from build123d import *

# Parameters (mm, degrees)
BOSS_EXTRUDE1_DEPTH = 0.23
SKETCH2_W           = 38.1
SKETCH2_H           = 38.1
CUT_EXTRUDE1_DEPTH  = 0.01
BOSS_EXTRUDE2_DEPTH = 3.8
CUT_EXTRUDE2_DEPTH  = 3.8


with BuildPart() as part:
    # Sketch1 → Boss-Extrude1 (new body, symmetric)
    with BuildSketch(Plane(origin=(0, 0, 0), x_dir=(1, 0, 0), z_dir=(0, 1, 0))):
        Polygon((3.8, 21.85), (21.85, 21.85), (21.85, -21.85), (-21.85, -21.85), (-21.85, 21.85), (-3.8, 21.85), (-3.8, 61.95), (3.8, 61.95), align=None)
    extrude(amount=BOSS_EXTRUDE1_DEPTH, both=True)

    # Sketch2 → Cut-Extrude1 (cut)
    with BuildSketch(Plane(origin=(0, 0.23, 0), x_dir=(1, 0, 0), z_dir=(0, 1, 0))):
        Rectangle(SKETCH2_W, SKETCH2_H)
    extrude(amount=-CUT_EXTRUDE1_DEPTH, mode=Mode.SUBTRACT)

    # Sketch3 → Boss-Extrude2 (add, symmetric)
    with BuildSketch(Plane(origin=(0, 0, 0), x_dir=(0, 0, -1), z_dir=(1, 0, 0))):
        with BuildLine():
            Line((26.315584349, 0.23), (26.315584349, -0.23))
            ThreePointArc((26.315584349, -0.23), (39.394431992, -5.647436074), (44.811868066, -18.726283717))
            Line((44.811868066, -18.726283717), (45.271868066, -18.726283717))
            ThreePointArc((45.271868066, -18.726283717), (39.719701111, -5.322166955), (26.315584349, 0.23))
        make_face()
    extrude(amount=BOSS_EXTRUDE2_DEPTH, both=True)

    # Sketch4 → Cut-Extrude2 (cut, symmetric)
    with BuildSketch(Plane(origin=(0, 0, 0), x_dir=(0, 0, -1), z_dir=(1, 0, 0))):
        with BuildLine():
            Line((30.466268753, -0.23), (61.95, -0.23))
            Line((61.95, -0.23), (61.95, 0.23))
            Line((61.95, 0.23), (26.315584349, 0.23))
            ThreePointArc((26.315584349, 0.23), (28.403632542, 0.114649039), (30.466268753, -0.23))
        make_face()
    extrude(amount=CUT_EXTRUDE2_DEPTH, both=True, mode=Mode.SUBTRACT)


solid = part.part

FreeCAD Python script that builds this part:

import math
import FreeCAD as App
import Part
import Sketcher
from FreeCAD import Vector


def add_polygon(sketch, points):
    """Adds a closed chain of lines whose ends are joined by coincident constraints."""
    first, n = sketch.GeometryCount, len(points)
    for a, b in zip(points, points[1:] + points[:1]):
        sketch.addGeometry(Part.LineSegment(App.Vector(*a, 0), App.Vector(*b, 0)), False)
    for i in range(n):
        sketch.addConstraint(Sketcher.Constraint("Coincident", first + i, 2, first + (i + 1) % n, 1))

doc = App.newDocument("Part")
params = doc.addObject("Spreadsheet::Sheet", "Params")
for row, (alias, value) in enumerate([
    ("sketch1_width", "7.6 mm"),
    ("sketch1_width2", "43.7 mm"),
    ("sketch1_height", "40.1 mm"),
    ("pad1_length", "0.46 mm"),
    ("sketch2_width", "38.1 mm"),
    ("pocket1_length", "0.01 mm"),
    ("sketch3_width", "0.46 mm"),
    ("pad2_length", "7.6 mm"),
    ("sketch4_width", "0.46 mm"),
    ("pocket2_length", "7.6 mm"),
], start=1):
    params.set(f"A{row}", alias)
    params.set(f"B{row}", "=" + value)
    params.setAlias(f"B{row}", alias)

body = doc.addObject("PartDesign::Body", "Body")

# Sketch on XZ plane
sketch1 = doc.addObject("Sketcher::SketchObject", "Sketch")
body.addObject(sketch1)
sketch1.AttachmentSupport = (doc.XZ_Plane, [""])
sketch1.MapMode = "FlatFace"
add_polygon(sketch1, [(22, -22), (4, -22), (4, -62), (-4, -62), (-4, -22), (-22, -22), (-22, 22), (22, 22)])  # lines 0-7
sketch1.addConstraint(Sketcher.Constraint("Horizontal", 0))
sketch1.addConstraint(Sketcher.Constraint("Vertical", 1))
sketch1.addConstraint(Sketcher.Constraint("Horizontal", 2))
sketch1.addConstraint(Sketcher.Constraint("Vertical", 3))
sketch1.addConstraint(Sketcher.Constraint("Horizontal", 4))
sketch1.addConstraint(Sketcher.Constraint("Vertical", 5))
sketch1.addConstraint(Sketcher.Constraint("Horizontal", 6))
sketch1.addConstraint(Sketcher.Constraint("Vertical", 7))
sketch1.addConstraint(Sketcher.Constraint("Symmetric", 4, 2, 6, 2, -1, 1))
sketch1.addConstraint(Sketcher.Constraint("Symmetric", 0, 2, 3, 2, -2))
sketch1.addConstraint(Sketcher.Constraint("Equal", 6, 5))
sketch1.addConstraint(Sketcher.Constraint("DistanceX", 2, 2, 2, 1, 7.6))
sketch1.addConstraint(Sketcher.Constraint("DistanceX", 6, 1, 6, 2, 43.7))
sketch1.addConstraint(Sketcher.Constraint("DistanceY", 1, 2, 1, 1, 40.1))
sketch1.setExpression("Constraints[19]", "Params.sketch1_width")
sketch1.setExpression("Constraints[20]", "Params.sketch1_width2")
sketch1.setExpression("Constraints[21]", "Params.sketch1_height")
pad1 = doc.addObject("PartDesign::Pad", "Pad")
body.addObject(pad1)
pad1.Profile = sketch1
pad1.setExpression("Length", "Params.pad1_length")
pad1.Midplane = True

# Sketch on XZ plane
sketch2 = doc.addObject("Sketcher::SketchObject", "Sketch001")
body.addObject(sketch2)
sketch2.AttachmentSupport = (doc.XZ_Plane, [""])
sketch2.MapMode = "FlatFace"
sketch2.AttachmentOffset = App.Placement(Vector(0, 0, -0.23), App.Rotation())
add_polygon(sketch2, [(-19, -19), (-19, 19), (19, 19), (19, -19)])  # lines 0-3
sketch2.addConstraint(Sketcher.Constraint("Vertical", 0))
sketch2.addConstraint(Sketcher.Constraint("Horizontal", 1))
sketch2.addConstraint(Sketcher.Constraint("Vertical", 2))
sketch2.addConstraint(Sketcher.Constraint("Horizontal", 3))
sketch2.addConstraint(Sketcher.Constraint("Symmetric", 0, 2, 2, 2, -1, 1))
sketch2.addConstraint(Sketcher.Constraint("Equal", 3, 0))
sketch2.addConstraint(Sketcher.Constraint("DistanceX", 1, 1, 1, 2, 38.1))
sketch2.setExpression("Constraints[10]", "Params.sketch2_width")
pocket1 = doc.addObject("PartDesign::Pocket", "Pocket")
body.addObject(pocket1)
pocket1.Profile = sketch2
pocket1.setExpression("Length", "Params.pocket1_length")
pocket1.Reversed = True

# Sketch on YZ plane
sketch3 = doc.addObject("Sketcher::SketchObject", "Sketch002")
body.addObject(sketch3)
sketch3.AttachmentSupport = (doc.YZ_Plane, [""])
sketch3.MapMode = "FlatFace"
sketch3.addGeometry(Part.LineSegment(Vector(0.23, -26.32, 0), Vector(-0.23, -26.32, 0)), False)
sketch3.addGeometry(Part.ArcOfCircle(Part.Circle(Vector(-18.73, -26.32, 0), Vector(0, 0, 1), 18.5), math.radians(-90), math.radians(0)), False)
sketch3.addGeometry(Part.LineSegment(Vector(-18.73, -44.81, 0), Vector(-18.73, -45.27, 0)), False)
sketch3.addGeometry(Part.ArcOfCircle(Part.Circle(Vector(-18.73, -26.32, 0), Vector(0, 0, 1), 18.96), math.radians(-90), math.radians(0)), False)
sketch3.addConstraint(Sketcher.Constraint("Coincident", 0, 2, 1, 2))
sketch3.addConstraint(Sketcher.Constraint("Coincident", 1, 1, 2, 1))
sketch3.addConstraint(Sketcher.Constraint("Coincident", 2, 2, 3, 1))
sketch3.addConstraint(Sketcher.Constraint("Coincident", 3, 2, 0, 1))
sketch3.addConstraint(Sketcher.Constraint("Horizontal", 0))
sketch3.addConstraint(Sketcher.Constraint("Vertical", 2))
sketch3.addConstraint(Sketcher.Constraint("Coincident", 3, 3, 1, 3))
sketch3.addConstraint(Sketcher.Constraint("Horizontal", 3, 3, 0, 2))
sketch3.addConstraint(Sketcher.Constraint("Vertical", 3, 3, 1, 1))
sketch3.addConstraint(Sketcher.Constraint("DistanceX", 0, 2, 0, 1, 0.46))
sketch3.addConstraint(Sketcher.Constraint("DistanceX", 0, 2, -1, 1, 0.23))
sketch3.addConstraint(Sketcher.Constraint("Radius", 1, 18.496284))
sketch3.addConstraint(Sketcher.Constraint("DistanceY", 1, 1, -1, 1, 44.811868))
sketch3.setExpression("Constraints[9]", "Params.sketch3_width")
pad2 = doc.addObject("PartDesign::Pad", "Pad001")
body.addObject(pad2)
pad2.Profile = sketch3
pad2.setExpression("Length", "Params.pad2_length")
pad2.Midplane = True

# Sketch on YZ plane
sketch4 = doc.addObject("Sketcher::SketchObject", "Sketch003")
body.addObject(sketch4)
sketch4.AttachmentSupport = (doc.YZ_Plane, [""])
sketch4.MapMode = "FlatFace"
sketch4.addGeometry(Part.LineSegment(Vector(-0.23, -30.47, 0), Vector(-0.23, -61.95, 0)), False)
sketch4.addGeometry(Part.LineSegment(Vector(-0.23, -61.95, 0), Vector(0.23, -61.95, 0)), False)
sketch4.addGeometry(Part.LineSegment(Vector(0.23, -61.95, 0), Vector(0.23, -26.32, 0)), False)
sketch4.addGeometry(Part.ArcOfCircle(Part.Circle(Vector(-18.73, -26.32, 0), Vector(0, 0, 1), 18.96), math.radians(-12.65), math.radians(0)), False)
sketch4.addConstraint(Sketcher.Constraint("Coincident", 0, 2, 1, 1))
sketch4.addConstraint(Sketcher.Constraint("Coincident", 1, 2, 2, 1))
sketch4.addConstraint(Sketcher.Constraint("Tangent", 2, 2, 3, 2))
sketch4.addConstraint(Sketcher.Constraint("Coincident", 3, 1, 0, 1))
sketch4.addConstraint(Sketcher.Constraint("Vertical", 0))
sketch4.addConstraint(Sketcher.Constraint("Horizontal", 1))
sketch4.addConstraint(Sketcher.Constraint("Vertical", 2))
sketch4.addConstraint(Sketcher.Constraint("DistanceX", 1, 1, 1, 2, 0.46))
sketch4.addConstraint(Sketcher.Constraint("DistanceX", 0, 2, -1, 1, 0.23))
sketch4.addConstraint(Sketcher.Constraint("DistanceY", 0, 2, -1, 1, 61.95))
sketch4.addConstraint(Sketcher.Constraint("Radius", 3, 18.956284))
sketch4.addConstraint(Sketcher.Constraint("DistanceY", 0, 2, 0, 1, 31.483731))
sketch4.setExpression("Constraints[7]", "Params.sketch4_width")
pocket2 = doc.addObject("PartDesign::Pocket", "Pocket001")
body.addObject(pocket2)
pocket2.Profile = sketch4
pocket2.setExpression("Length", "Params.pocket2_length")
pocket2.Midplane = True

doc.recompute()
